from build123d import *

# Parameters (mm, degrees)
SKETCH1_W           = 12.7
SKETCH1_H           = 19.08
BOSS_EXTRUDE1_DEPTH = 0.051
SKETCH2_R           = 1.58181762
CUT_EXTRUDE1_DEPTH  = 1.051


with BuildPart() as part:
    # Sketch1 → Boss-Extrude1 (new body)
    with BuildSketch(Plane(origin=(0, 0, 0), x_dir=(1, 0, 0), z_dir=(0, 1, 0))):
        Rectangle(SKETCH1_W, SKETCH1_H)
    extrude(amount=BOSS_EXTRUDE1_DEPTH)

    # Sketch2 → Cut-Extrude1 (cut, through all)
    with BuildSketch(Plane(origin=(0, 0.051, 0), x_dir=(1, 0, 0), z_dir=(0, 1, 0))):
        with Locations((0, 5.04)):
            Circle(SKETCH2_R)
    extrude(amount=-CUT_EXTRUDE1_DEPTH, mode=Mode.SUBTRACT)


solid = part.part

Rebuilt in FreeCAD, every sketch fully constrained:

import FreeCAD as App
import Part
import Sketcher

V = App.Vector
Q = App.Units.Quantity


def add_polygon(sketch, points):
    """Adds a closed chain of lines whose ends are joined by coincident constraints."""
    first, n = sketch.GeometryCount, len(points)
    for a, b in zip(points, points[1:] + points[:1]):
        sketch.addGeometry(Part.LineSegment(App.Vector(*a, 0), App.Vector(*b, 0)), False)
    for i in range(n):
        sketch.addConstraint(Sketcher.Constraint("Coincident", first + i, 2, first + (i + 1) % n, 1))

doc = App.newDocument("Part")
body = doc.addObject("PartDesign::Body", "Body")

# Sketch on XZ plane
sketch1 = doc.addObject("Sketcher::SketchObject", "Sketch")
body.addObject(sketch1)
sketch1.AttachmentSupport = (doc.XZ_Plane, [""])
sketch1.MapMode = "FlatFace"
add_polygon(sketch1, [(-6, -10), (-6, 10), (6, 10), (6, -10)])  # lines 0-3
sketch1.addConstraint(Sketcher.Constraint("Vertical", 0))
sketch1.addConstraint(Sketcher.Constraint("Horizontal", 1))
sketch1.addConstraint(Sketcher.Constraint("Vertical", 2))
sketch1.addConstraint(Sketcher.Constraint("Horizontal", 3))
sketch1.addConstraint(Sketcher.Constraint("Symmetric", 0, 2, 2, 2, -1, 1))
sketch1.addConstraint(Sketcher.Constraint("DistanceX", 1, 1, 1, 2, Q("0.5 in")))
sketch1.addConstraint(Sketcher.Constraint("DistanceY", 0, 1, 0, 2, 19.08))
pad1 = doc.addObject("PartDesign::Pad", "Pad")
body.addObject(pad1)
pad1.Profile = sketch1
pad1.Length = 0.051
pad1.Reversed = True

# Sketch on XZ plane
sketch2 = doc.addObject("Sketcher::SketchObject", "Sketch001")
body.addObject(sketch2)
sketch2.AttachmentSupport = (doc.XZ_Plane, [""])
sketch2.MapMode = "FlatFace"
sketch2.AttachmentOffset = App.Placement(V(0, 0, -0.051), App.Rotation())
sketch2.addGeometry(Part.Circle(V(0, -5, 0), V(0, 0, 1), 1.6), False)
sketch2.addConstraint(Sketcher.Constraint("PointOnObject", 0, 3, -2))
sketch2.addConstraint(Sketcher.Constraint("Diameter", 0, 3.163635))
sketch2.addConstraint(Sketcher.Constraint("DistanceY", 0, 3, -1, 1, 5.04))
pocket1 = doc.addObject("PartDesign::Pocket", "Pocket")
body.addObject(pocket1)
pocket1.Profile = sketch2
pocket1.Type = "ThroughAll"
pocket1.Reversed = True

doc.recompute()
